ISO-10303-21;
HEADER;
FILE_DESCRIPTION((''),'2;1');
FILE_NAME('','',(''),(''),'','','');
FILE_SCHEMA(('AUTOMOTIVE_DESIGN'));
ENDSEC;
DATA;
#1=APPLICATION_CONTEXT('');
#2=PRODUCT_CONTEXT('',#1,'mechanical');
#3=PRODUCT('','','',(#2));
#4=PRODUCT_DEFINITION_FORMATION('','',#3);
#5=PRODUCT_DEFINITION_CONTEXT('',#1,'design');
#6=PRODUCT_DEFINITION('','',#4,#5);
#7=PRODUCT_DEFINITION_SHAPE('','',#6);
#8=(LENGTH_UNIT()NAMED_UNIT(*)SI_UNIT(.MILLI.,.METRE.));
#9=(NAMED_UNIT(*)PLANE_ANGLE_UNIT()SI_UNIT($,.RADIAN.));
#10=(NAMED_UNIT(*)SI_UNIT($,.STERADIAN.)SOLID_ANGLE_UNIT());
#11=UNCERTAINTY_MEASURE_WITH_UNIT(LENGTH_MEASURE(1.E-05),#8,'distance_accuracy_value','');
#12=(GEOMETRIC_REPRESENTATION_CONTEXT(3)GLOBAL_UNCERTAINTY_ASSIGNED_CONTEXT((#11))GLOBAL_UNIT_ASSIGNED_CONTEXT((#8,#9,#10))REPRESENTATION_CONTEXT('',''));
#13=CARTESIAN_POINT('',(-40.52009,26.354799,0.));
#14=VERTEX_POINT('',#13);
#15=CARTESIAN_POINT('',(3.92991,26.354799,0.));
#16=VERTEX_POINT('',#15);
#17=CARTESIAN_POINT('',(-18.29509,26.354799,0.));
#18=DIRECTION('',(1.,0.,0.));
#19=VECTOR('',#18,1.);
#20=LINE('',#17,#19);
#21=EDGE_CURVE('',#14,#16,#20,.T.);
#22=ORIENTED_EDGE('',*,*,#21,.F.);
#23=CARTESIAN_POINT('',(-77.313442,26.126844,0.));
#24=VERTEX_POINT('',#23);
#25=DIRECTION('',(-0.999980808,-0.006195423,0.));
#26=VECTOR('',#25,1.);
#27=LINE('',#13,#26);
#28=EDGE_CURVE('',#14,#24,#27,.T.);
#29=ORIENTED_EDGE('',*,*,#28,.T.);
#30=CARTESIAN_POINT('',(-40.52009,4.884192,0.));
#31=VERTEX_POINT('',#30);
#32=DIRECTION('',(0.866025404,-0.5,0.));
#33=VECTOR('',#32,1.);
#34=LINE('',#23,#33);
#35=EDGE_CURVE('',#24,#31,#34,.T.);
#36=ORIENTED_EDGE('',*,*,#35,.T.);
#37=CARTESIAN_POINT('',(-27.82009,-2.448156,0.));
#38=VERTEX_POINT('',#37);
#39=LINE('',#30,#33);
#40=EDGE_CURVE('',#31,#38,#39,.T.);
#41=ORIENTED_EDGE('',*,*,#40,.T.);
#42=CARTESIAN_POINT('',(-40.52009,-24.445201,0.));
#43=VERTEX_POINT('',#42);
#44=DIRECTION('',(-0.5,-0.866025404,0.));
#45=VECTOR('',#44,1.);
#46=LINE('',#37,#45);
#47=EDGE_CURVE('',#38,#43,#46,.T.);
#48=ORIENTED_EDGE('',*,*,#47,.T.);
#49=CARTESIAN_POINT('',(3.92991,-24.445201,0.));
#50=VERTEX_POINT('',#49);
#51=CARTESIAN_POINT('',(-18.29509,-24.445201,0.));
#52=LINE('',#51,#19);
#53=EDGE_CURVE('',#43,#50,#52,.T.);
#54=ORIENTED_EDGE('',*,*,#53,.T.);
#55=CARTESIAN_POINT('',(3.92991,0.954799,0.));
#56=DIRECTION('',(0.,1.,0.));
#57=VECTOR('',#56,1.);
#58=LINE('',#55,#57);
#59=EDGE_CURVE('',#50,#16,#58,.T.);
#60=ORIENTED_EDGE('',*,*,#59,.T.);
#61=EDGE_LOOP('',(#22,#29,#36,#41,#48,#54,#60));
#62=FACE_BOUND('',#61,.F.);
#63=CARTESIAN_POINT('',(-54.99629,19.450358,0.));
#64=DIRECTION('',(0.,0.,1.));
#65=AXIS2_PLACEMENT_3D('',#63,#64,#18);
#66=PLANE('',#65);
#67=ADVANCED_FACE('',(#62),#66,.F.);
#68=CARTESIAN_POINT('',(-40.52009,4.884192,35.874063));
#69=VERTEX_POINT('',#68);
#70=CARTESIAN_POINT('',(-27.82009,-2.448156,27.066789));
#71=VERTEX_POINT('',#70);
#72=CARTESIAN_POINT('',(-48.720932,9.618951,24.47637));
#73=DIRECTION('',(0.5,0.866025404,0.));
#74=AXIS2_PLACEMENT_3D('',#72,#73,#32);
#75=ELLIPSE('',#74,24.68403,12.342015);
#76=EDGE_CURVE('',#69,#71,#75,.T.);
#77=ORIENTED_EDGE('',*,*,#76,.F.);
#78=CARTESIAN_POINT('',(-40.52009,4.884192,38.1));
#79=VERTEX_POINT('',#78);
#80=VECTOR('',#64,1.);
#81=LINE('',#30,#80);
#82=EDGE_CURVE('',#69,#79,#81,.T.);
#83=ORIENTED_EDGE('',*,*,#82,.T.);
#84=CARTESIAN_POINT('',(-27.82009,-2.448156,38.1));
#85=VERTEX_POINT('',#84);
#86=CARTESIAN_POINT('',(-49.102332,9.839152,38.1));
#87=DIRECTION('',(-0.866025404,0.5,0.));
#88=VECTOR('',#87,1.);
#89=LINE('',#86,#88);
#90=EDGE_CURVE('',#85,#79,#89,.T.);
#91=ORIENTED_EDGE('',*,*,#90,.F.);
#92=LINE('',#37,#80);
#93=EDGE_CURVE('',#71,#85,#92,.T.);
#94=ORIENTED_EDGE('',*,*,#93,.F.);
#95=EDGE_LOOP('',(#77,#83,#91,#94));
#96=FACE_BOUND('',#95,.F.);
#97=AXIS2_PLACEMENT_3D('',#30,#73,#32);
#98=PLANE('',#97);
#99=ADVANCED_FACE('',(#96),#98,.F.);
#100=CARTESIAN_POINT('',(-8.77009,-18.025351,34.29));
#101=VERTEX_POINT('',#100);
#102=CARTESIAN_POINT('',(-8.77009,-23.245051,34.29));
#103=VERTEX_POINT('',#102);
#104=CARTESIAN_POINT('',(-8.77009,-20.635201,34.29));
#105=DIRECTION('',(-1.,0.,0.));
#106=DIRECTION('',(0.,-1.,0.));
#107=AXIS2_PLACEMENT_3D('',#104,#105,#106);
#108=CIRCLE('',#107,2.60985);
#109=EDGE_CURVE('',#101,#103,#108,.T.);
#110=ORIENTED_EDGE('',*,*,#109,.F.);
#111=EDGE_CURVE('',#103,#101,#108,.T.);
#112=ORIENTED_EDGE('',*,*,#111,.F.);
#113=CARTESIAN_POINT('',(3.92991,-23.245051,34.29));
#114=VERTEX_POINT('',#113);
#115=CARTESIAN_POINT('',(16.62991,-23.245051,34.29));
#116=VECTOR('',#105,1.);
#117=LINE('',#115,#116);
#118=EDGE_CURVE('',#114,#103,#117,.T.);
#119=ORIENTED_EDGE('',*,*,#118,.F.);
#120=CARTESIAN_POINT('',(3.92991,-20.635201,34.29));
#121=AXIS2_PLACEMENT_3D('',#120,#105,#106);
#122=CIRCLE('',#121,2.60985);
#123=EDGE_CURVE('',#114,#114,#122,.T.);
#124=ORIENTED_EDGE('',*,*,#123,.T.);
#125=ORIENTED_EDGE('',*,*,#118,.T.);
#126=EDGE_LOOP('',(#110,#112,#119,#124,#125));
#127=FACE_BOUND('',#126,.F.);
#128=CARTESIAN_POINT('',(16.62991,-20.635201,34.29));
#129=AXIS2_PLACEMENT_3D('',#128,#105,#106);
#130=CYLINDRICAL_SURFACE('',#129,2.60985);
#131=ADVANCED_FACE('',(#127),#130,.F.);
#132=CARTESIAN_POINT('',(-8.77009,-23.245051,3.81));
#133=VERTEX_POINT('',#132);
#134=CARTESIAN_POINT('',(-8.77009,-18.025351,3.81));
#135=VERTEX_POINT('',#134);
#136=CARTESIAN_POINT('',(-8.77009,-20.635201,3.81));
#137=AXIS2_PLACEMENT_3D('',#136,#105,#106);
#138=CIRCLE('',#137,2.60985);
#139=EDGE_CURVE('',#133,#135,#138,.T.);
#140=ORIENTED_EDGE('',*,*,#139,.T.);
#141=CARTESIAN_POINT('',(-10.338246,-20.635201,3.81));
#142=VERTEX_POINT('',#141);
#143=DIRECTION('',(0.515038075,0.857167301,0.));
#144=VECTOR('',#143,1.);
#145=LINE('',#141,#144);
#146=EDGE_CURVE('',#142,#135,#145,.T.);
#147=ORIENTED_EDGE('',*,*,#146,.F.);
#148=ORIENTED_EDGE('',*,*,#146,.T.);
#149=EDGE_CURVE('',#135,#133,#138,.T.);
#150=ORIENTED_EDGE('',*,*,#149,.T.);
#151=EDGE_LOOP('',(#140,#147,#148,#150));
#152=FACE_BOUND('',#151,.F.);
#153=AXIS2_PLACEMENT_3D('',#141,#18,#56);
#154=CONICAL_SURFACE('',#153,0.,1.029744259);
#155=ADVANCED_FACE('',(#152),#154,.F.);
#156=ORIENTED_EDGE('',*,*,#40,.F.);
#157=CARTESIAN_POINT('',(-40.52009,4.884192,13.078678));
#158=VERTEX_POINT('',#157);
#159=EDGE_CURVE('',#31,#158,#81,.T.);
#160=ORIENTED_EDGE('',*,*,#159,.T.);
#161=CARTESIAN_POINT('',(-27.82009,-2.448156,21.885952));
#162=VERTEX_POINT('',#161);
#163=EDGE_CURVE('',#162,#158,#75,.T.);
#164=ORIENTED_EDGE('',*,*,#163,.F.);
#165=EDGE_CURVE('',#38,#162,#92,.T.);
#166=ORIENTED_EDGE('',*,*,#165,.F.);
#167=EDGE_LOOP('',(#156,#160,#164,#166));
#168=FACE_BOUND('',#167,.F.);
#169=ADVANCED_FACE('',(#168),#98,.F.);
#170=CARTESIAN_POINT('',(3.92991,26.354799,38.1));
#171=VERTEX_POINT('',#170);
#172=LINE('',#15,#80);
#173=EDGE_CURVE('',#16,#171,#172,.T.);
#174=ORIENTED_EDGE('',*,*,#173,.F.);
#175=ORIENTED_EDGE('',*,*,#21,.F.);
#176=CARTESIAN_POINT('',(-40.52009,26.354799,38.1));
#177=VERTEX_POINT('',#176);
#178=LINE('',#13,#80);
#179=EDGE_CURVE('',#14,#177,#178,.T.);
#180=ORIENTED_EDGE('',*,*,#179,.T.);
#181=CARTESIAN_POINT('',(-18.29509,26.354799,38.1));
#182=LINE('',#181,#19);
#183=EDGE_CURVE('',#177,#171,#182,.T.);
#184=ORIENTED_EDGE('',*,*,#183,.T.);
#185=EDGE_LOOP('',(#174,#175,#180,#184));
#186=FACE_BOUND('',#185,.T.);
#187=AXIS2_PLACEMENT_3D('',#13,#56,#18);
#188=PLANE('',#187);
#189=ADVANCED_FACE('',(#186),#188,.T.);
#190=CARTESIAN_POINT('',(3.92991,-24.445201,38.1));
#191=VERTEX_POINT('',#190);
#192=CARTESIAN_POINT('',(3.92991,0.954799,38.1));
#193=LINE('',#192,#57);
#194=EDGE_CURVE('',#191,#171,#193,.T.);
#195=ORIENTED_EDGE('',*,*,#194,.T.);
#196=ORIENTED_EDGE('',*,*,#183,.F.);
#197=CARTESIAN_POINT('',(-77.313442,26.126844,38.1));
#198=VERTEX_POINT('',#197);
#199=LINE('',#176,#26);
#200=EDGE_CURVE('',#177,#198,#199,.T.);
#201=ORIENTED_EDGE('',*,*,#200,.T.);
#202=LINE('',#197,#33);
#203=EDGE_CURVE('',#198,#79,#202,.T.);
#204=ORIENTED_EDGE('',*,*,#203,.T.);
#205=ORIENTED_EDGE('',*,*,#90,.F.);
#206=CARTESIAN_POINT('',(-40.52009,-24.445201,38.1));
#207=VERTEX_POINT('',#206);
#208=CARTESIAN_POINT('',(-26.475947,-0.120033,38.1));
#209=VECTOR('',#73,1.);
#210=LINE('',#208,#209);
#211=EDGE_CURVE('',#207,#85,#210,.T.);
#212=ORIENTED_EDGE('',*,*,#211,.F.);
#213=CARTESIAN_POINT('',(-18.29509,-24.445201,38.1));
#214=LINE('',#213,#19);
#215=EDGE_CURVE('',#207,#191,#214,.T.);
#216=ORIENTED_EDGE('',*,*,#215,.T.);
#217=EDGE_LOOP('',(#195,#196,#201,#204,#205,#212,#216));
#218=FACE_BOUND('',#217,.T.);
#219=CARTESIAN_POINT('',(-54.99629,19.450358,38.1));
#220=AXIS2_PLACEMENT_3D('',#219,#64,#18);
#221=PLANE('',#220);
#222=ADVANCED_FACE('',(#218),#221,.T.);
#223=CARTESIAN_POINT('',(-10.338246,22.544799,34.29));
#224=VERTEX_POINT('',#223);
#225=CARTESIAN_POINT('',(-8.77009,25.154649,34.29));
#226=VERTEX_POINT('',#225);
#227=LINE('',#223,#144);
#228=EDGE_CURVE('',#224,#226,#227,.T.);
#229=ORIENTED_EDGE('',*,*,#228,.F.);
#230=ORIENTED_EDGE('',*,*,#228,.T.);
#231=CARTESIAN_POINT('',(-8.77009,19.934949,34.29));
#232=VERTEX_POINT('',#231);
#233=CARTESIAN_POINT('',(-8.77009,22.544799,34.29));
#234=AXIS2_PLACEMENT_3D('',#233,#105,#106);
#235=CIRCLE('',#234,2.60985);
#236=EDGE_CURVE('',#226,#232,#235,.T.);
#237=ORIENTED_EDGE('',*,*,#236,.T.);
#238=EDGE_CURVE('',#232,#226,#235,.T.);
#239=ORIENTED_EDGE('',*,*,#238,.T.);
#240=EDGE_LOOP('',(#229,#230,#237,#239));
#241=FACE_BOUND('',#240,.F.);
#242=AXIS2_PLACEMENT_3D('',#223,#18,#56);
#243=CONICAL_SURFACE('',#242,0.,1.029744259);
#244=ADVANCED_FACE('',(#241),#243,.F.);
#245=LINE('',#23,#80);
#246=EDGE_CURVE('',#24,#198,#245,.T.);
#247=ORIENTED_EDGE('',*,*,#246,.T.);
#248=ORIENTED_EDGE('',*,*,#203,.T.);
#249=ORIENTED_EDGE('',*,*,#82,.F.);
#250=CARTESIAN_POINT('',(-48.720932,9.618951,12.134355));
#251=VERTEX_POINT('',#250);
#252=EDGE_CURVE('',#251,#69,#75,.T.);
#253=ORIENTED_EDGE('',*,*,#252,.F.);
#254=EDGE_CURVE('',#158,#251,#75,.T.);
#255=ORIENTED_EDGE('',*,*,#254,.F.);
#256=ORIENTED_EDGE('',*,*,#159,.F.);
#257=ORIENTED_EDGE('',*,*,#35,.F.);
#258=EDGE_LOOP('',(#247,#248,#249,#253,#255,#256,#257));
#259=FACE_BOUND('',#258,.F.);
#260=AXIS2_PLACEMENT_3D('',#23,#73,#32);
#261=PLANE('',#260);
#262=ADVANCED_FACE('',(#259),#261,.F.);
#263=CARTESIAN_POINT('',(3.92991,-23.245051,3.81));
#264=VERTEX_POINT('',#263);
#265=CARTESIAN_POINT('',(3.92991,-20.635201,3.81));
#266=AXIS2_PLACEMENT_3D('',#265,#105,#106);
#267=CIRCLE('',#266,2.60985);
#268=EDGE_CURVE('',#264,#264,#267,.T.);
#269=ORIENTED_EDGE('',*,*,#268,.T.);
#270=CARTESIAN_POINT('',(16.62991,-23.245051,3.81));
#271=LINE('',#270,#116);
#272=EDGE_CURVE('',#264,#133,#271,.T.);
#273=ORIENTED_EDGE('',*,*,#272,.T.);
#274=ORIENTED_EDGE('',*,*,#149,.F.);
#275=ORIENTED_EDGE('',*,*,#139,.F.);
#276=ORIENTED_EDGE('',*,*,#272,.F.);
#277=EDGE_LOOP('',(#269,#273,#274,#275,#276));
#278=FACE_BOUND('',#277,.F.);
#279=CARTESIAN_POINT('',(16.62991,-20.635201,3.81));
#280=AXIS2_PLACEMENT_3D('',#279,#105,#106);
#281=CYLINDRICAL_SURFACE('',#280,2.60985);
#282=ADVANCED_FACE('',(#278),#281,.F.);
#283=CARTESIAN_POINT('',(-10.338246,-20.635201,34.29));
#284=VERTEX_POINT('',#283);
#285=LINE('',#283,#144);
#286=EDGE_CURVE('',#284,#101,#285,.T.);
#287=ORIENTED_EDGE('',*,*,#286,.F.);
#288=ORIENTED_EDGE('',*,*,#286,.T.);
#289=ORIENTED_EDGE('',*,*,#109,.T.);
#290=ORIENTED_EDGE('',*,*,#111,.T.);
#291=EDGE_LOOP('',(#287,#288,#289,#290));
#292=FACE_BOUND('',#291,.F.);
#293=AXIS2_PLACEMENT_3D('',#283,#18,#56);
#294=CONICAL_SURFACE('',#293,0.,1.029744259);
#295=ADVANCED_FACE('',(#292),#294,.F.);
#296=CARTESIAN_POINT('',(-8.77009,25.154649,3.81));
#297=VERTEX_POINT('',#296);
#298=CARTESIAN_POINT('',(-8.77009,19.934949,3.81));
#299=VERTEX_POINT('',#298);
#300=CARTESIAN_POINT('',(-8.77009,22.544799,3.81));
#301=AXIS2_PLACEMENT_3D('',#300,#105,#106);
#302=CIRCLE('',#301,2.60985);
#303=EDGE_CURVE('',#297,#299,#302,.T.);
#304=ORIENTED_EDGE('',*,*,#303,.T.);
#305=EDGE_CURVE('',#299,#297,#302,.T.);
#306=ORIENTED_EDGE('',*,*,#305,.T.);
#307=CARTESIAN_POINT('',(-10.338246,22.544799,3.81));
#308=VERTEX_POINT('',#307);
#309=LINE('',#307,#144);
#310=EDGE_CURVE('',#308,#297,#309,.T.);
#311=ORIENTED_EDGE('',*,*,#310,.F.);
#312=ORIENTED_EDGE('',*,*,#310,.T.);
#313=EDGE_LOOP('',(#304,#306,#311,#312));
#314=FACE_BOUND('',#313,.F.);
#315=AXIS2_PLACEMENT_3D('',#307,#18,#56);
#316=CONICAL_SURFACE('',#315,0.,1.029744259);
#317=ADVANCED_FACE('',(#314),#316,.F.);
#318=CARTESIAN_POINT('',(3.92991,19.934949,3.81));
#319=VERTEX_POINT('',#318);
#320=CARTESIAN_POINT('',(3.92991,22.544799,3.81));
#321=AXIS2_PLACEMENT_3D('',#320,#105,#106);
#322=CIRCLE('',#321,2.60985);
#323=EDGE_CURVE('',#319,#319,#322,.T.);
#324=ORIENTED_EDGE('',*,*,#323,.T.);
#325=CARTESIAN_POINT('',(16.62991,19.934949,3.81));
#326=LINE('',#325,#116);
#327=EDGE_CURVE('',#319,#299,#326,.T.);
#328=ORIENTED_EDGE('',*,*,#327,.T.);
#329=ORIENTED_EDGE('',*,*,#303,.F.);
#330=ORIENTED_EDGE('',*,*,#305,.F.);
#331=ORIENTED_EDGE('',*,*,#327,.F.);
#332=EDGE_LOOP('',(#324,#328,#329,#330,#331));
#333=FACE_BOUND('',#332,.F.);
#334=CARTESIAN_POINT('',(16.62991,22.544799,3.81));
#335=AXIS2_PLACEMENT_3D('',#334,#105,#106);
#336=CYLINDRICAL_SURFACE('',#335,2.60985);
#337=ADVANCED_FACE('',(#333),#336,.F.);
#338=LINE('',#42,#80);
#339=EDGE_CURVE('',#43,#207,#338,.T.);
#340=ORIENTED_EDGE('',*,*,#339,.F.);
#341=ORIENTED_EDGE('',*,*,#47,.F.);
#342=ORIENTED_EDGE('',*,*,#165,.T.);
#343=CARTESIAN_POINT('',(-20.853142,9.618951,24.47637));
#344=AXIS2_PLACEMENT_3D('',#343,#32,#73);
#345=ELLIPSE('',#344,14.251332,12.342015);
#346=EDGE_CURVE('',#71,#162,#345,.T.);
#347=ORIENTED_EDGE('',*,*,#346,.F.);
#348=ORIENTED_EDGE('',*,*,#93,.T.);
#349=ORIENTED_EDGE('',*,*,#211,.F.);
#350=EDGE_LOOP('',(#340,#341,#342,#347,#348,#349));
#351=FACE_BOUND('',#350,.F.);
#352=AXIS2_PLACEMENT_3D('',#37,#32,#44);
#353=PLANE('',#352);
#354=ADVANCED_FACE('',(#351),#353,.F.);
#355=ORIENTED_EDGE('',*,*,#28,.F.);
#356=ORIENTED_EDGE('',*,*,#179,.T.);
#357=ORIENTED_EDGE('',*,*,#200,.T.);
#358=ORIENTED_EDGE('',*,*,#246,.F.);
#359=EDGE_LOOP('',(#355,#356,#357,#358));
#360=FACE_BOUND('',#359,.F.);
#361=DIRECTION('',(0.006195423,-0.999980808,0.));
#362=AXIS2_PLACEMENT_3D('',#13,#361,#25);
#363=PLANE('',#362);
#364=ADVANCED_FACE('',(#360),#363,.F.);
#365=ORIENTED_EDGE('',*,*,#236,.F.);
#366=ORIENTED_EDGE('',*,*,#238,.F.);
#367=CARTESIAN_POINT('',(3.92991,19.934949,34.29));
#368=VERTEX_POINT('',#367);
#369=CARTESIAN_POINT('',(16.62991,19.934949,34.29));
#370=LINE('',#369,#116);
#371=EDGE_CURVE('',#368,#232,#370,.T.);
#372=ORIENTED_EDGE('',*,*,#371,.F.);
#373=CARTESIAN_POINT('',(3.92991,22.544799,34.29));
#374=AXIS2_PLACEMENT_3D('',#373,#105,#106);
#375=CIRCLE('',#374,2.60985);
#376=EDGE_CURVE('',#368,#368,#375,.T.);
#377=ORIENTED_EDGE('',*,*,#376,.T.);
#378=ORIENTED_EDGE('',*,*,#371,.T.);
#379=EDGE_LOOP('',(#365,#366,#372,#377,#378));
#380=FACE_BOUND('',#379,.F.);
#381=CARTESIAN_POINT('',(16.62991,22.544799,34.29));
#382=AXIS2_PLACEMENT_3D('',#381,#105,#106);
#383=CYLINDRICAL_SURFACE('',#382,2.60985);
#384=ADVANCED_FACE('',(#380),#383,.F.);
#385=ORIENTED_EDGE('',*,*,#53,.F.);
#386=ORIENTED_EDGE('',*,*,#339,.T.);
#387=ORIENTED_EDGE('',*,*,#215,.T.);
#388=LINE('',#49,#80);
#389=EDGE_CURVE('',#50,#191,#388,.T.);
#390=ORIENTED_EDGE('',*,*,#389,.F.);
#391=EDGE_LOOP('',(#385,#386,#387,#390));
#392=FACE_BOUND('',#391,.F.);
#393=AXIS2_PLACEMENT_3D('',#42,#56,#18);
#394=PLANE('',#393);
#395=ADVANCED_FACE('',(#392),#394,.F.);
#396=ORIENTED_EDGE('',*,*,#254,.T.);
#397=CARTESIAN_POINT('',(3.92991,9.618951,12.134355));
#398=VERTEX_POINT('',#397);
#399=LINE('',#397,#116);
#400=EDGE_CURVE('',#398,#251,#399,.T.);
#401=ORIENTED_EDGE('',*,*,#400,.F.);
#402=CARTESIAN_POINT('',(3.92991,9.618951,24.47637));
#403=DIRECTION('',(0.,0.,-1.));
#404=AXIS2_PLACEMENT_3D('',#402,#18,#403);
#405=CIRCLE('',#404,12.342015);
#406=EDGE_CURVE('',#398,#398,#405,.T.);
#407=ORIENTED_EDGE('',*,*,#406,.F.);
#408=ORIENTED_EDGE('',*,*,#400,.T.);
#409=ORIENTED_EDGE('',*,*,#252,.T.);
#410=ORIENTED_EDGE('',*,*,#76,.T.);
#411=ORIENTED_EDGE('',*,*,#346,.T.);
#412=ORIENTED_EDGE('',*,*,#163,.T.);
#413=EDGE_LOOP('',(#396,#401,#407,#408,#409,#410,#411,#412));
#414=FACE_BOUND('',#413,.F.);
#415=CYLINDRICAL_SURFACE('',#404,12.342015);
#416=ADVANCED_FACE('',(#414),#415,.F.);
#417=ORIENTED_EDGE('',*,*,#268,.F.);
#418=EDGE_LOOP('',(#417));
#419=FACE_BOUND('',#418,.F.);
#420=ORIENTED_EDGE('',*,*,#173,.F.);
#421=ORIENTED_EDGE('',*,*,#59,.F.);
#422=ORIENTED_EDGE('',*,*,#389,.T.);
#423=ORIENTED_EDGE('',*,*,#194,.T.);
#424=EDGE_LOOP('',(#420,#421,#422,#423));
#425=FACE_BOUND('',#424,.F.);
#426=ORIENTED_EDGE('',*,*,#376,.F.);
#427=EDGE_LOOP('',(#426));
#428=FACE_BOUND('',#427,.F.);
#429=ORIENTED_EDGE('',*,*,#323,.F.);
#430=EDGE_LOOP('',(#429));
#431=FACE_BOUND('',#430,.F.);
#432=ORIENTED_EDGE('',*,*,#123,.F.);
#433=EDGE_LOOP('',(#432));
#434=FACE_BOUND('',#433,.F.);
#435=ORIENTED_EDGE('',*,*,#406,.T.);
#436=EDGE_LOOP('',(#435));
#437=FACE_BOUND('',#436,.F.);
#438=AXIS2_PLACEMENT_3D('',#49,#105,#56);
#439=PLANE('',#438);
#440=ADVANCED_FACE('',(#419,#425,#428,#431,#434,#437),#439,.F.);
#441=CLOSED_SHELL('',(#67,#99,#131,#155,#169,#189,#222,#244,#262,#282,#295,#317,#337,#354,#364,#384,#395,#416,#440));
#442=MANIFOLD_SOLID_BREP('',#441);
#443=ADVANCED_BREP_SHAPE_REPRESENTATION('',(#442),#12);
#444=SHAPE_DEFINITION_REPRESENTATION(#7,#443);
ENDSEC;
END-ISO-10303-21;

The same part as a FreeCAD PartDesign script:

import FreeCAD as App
import Part
import Sketcher
from FreeCAD import Vector
Q = App.Units.Quantity


def add_polygon(sketch, points):
    """Adds a closed chain of lines whose ends are joined by coincident constraints."""
    first, n = sketch.GeometryCount, len(points)
    for a, b in zip(points, points[1:] + points[:1]):
        sketch.addGeometry(Part.LineSegment(App.Vector(*a, 0), App.Vector(*b, 0)), False)
    for i in range(n):
        sketch.addConstraint(Sketcher.Constraint("Coincident", first + i, 2, first + (i + 1) % n, 1))

doc = App.newDocument("Part")
body = doc.addObject("PartDesign::Body", "Body")

sketch1 = body.newObject("Sketcher::SketchObject", "Sketch")
sketch1.AttachmentSupport = (doc.getObject("XY_Plane"), [""])
sketch1.MapMode = "FlatFace"
add_polygon(sketch1, [(-41, 26), (-41, -24), (4, -24), (4, 26)])
sketch1.addConstraint(Sketcher.Constraint("Vertical", 0))
sketch1.addConstraint(Sketcher.Constraint("Horizontal", 1))
sketch1.addConstraint(Sketcher.Constraint("Vertical", 2))
sketch1.addConstraint(Sketcher.Constraint("Horizontal", 3))
sketch1.addConstraint(Sketcher.Constraint("DistanceY", 0, 2, 0, 1, Q("2 in")))
sketch1.addConstraint(Sketcher.Constraint("DistanceX", 1, 1, 1, 2, Q("1.75 in")))
sketch1.addConstraint(Sketcher.Constraint("DistanceY", 0, 2, -1, 1, Q("24.445201 mm")))
sketch1.addConstraint(Sketcher.Constraint("DistanceX", 0, 2, -1, 1, Q("40.52009 mm")))
pad1 = body.newObject("PartDesign::Pad", "Pad")
pad1.Profile = sketch1
pad1.Length = Q("1.5 in")

sketch2 = body.newObject("Sketcher::SketchObject", "Sketch001")
sketch2.AttachmentSupport = (doc.getObject("YZ_Plane"), [""])
sketch2.MapMode = "FlatFace"
sketch2.AttachmentOffset = App.Placement(Vector(0, 0, 3.92991), App.Rotation())
sketch2.addGeometry(Part.Circle(Vector(22.5, 34.3, 0), Vector(0, 0, 1), 2.6), False)
sketch2.addGeometry(Part.Circle(Vector(22.5, 3.8, 0), Vector(0, 0, 1), 2.6), False)
sketch2.addGeometry(Part.Circle(Vector(-20.6, 3.8, 0), Vector(0, 0, 1), 2.6), False)
sketch2.addGeometry(Part.Circle(Vector(-20.6, 34.3, 0), Vector(0, 0, 1), 2.6), False)
sketch2.addConstraint(Sketcher.Constraint("Equal", 0, 1))
sketch2.addConstraint(Sketcher.Constraint("Equal", 1, 2))
sketch2.addConstraint(Sketcher.Constraint("Equal", 2, 3))
sketch2.addConstraint(Sketcher.Constraint("Horizontal", 1, 3, 2, 3))
sketch2.addConstraint(Sketcher.Constraint("Horizontal", 0, 3, 3, 3))
sketch2.addConstraint(Sketcher.Constraint("Vertical", 0, 3, 1, 3))
sketch2.addConstraint(Sketcher.Constraint("Vertical", 2, 3, 3, 3))
sketch2.addConstraint(Sketcher.Constraint("Diameter", 0, Q("0.2055 in")))
sketch2.addConstraint(Sketcher.Constraint("DistanceY", 1, 3, 0, 3, Q("1.2 in")))
sketch2.addConstraint(Sketcher.Constraint("DistanceX", 2, 3, 1, 3, Q("1.7 in")))
sketch2.addConstraint(Sketcher.Constraint("DistanceY", -1, 1, 0, 3, Q("1.35 in")))
sketch2.addConstraint(Sketcher.Constraint("DistanceX", -1, 1, 0, 3, Q("22.544799 mm")))
doc.recompute()
hole = body.newObject("PartDesign::Hole", "Hole")
hole.Profile = sketch2
hole.ThreadType = "None"
hole.Diameter = Q("0.2055 in")
hole.DepthType = "Dimension"
hole.Depth = Q("0.5 in")
hole.DrillPoint = "Angled"
hole.DrillPointAngle = 118

sketch3 = body.newObject("Sketcher::SketchObject", "Sketch002")
sketch3.AttachmentSupport = (doc.getObject("XY_Plane"), [""])
sketch3.MapMode = "FlatFace"
add_polygon(sketch3, [(-77, 26), (-41, 26), (-41, 5)])
sketch3.addConstraint(Sketcher.Constraint("Vertical", 1))
sketch3.addConstraint(Sketcher.Constraint("Angle", 2, Q("150 deg")))
sketch3.addConstraint(Sketcher.Constraint("DistanceY", -1, 1, 0, 2, Q("26.354799 mm")))
sketch3.addConstraint(Sketcher.Constraint("DistanceY", 1, 2, 1, 1, Q("21.470606 mm")))
sketch3.addConstraint(Sketcher.Constraint("DistanceX", 0, 2, -1, 1, Q("40.52009 mm")))
sketch3.addConstraint(Sketcher.Constraint("DistanceX", 2, 2, -1, 1, Q("77.313442 mm")))
pad2 = body.newObject("PartDesign::Pad", "Pad001")
pad2.Profile = sketch3
pad2.Length = Q("1.5 in")

sketch4 = body.newObject("Sketcher::SketchObject", "Sketch003")
sketch4.AttachmentSupport = (doc.getObject("XY_Plane"), [""])
sketch4.MapMode = "FlatFace"
add_polygon(sketch4, [(-41, 5), (-28, -2), (-41, -24)])
sketch4.addConstraint(Sketcher.Constraint("Vertical", 2))
sketch4.addConstraint(Sketcher.Constraint("Perpendicular", 0, 1))
sketch4.addConstraint(Sketcher.Constraint("Distance", 1, Q("1 in")))
sketch4.addConstraint(Sketcher.Constraint("Angle", 0, Q("-30 deg")))
sketch4.addConstraint(Sketcher.Constraint("DistanceY", 1, 2, -1, 1, Q("24.445201 mm")))
sketch4.addConstraint(Sketcher.Constraint("DistanceX", 0, 2, -1, 1, Q("27.82009 mm")))
pocket1 = body.newObject("PartDesign::Pocket", "Pocket")
pocket1.Profile = sketch4
pocket1.Type = "ThroughAll"
pocket1.Reversed = True

sketch5 = body.newObject("Sketcher::SketchObject", "Sketch004")
sketch5.AttachmentSupport = (doc.getObject("YZ_Plane"), [""])
sketch5.MapMode = "FlatFace"
sketch5.AttachmentOffset = App.Placement(Vector(0, 0, 3.92991), App.Rotation())
sketch5.addGeometry(Part.Circle(Vector(10, 24, 0), Vector(0, 0, 1), 12), False)
sketch5.addConstraint(Sketcher.Constraint("Diameter", 0, Q("24.68403 mm")))
sketch5.addConstraint(Sketcher.Constraint("DistanceX", -1, 1, 0, 3, Q("9.618951 mm")))
sketch5.addConstraint(Sketcher.Constraint("DistanceY", -1, 1, 0, 3, Q("24.47637 mm")))
pocket2 = body.newObject("PartDesign::Pocket", "Pocket001")
pocket2.Profile = sketch5
pocket2.Type = "ThroughAll"
pocket2.Midplane = True

doc.recompute()
